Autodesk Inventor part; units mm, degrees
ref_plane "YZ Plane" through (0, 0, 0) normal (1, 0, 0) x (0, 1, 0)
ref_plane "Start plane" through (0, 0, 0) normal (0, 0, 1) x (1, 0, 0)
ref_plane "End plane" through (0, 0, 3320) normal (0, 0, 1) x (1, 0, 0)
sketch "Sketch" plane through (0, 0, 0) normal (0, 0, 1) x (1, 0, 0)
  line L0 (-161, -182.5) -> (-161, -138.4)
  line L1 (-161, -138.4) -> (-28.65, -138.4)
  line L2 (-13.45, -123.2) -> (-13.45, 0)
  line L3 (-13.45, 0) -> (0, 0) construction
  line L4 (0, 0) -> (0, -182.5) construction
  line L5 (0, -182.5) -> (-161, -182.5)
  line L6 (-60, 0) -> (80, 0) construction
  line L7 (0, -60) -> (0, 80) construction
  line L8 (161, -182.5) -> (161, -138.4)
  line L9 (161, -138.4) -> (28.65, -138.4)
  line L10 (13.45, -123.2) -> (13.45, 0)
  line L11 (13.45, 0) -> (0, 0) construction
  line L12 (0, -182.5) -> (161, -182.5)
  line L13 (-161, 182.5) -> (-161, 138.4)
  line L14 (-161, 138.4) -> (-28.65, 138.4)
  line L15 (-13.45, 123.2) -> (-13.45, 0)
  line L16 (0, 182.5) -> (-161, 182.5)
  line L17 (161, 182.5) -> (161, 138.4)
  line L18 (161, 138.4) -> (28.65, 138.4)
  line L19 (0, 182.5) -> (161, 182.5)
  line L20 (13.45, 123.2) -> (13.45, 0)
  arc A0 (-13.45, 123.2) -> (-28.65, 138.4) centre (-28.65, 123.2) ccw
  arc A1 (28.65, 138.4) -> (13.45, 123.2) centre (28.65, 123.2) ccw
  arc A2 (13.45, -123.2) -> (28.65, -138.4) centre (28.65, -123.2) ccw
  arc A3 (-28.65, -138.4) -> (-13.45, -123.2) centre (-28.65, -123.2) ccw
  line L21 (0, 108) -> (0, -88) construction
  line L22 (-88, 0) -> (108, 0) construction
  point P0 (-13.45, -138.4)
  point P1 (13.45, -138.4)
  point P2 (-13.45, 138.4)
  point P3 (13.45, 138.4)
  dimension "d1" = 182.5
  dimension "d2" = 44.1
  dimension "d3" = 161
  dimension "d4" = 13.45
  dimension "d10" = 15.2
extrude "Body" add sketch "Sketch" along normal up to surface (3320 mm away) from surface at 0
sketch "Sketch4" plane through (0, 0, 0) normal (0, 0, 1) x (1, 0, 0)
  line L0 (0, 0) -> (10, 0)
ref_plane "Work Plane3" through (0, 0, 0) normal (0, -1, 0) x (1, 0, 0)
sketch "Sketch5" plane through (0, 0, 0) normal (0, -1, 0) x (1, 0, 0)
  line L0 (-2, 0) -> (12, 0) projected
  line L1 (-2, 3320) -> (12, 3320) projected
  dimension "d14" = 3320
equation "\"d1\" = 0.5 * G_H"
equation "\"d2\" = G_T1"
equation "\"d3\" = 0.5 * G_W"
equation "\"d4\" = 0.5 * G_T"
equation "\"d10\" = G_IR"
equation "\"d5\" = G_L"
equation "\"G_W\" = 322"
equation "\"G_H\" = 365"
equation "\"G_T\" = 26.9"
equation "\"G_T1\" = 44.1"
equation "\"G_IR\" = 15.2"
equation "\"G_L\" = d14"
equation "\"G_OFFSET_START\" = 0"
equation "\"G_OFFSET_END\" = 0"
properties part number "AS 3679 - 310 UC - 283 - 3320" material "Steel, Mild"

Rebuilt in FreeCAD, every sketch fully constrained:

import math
import FreeCAD as App
import Part
import Sketcher

doc = App.newDocument("Part")
body = doc.addObject("PartDesign::Body", "Body")

# Sketch on XY plane
sketch1 = body.newObject("Sketcher::SketchObject", "Sketch")
sketch1.AttachmentSupport = (doc.getObject("XY_Plane"), [""])
sketch1.MapMode = "FlatFace"
sketch1.addGeometry([
    Part.LineSegment(App.Vector(-161, -138.4, 0), App.Vector(-161, -182.5, 0)),  # 0
    Part.LineSegment(App.Vector(-161, -182.5, 0), App.Vector(161, -182.5, 0)),  # 1
    Part.LineSegment(App.Vector(161, -182.5, 0), App.Vector(161, -138.4, 0)),  # 2
    Part.LineSegment(App.Vector(161, -138.4, 0), App.Vector(28.65, -138.4, 0)),  # 3
    Part.ArcOfCircle(Part.Circle(App.Vector(28.65, -123.2, 0), App.Vector(0, 0, 1), 15.2), math.radians(180), math.radians(270)),  # 4
    Part.LineSegment(App.Vector(13.45, -123.2, 0), App.Vector(13.45, 123.2, 0)),  # 5
    Part.ArcOfCircle(Part.Circle(App.Vector(28.65, 123.2, 0), App.Vector(0, 0, 1), 15.2), math.radians(90), math.radians(180)),  # 6
    Part.LineSegment(App.Vector(28.65, 138.4, 0), App.Vector(161, 138.4, 0)),  # 7
    Part.LineSegment(App.Vector(161, 138.4, 0), App.Vector(161, 182.5, 0)),  # 8
    Part.LineSegment(App.Vector(161, 182.5, 0), App.Vector(-161, 182.5, 0)),  # 9
    Part.LineSegment(App.Vector(-161, 182.5, 0), App.Vector(-161, 138.4, 0)),  # 10
    Part.LineSegment(App.Vector(-161, 138.4, 0), App.Vector(-28.65, 138.4, 0)),  # 11
    Part.ArcOfCircle(Part.Circle(App.Vector(-28.65, 123.2, 0), App.Vector(0, 0, 1), 15.2), math.radians(0), math.radians(90)),  # 12
    Part.LineSegment(App.Vector(-13.45, 123.2, 0), App.Vector(-13.45, -123.2, 0)),  # 13
    Part.ArcOfCircle(Part.Circle(App.Vector(-28.65, -123.2, 0), App.Vector(0, 0, 1), 15.2), math.radians(-90), math.radians(0)),  # 14
    Part.LineSegment(App.Vector(-28.65, -138.4, 0), App.Vector(-161, -138.4, 0)),  # 15
], False)
sketch1.addConstraint([
    Sketcher.Constraint("Coincident", 0, 2, 1, 1),
    Sketcher.Constraint("Coincident", 1, 2, 2, 1),
    Sketcher.Constraint("Coincident", 2, 2, 3, 1),
    Sketcher.Constraint("Tangent", 3, 2, 4, 2),
    Sketcher.Constraint("Tangent", 4, 1, 5, 1),
    Sketcher.Constraint("Tangent", 5, 2, 6, 2),
    Sketcher.Constraint("Tangent", 6, 1, 7, 1),
    Sketcher.Constraint("Coincident", 7, 2, 8, 1),
    Sketcher.Constraint("Coincident", 8, 2, 9, 1),
    Sketcher.Constraint("Coincident", 9, 2, 10, 1),
    Sketcher.Constraint("Coincident", 10, 2, 11, 1),
    Sketcher.Constraint("Tangent", 11, 2, 12, 2),
    Sketcher.Constraint("Tangent", 12, 1, 13, 1),
    Sketcher.Constraint("Tangent", 13, 2, 14, 2),
    Sketcher.Constraint("Tangent", 14, 1, 15, 1),
    Sketcher.Constraint("Coincident", 15, 2, 0, 1),
    Sketcher.Constraint("Vertical", 0),
    Sketcher.Constraint("Horizontal", 1),
    Sketcher.Constraint("Vertical", 2),
    Sketcher.Constraint("Horizontal", 3),
    Sketcher.Constraint("Vertical", 5),
    Sketcher.Constraint("Horizontal", 7),
    Sketcher.Constraint("Vertical", 8),
    Sketcher.Constraint("Horizontal", 9),
    Sketcher.Constraint("Vertical", 10),
    Sketcher.Constraint("Horizontal", 11),
    Sketcher.Constraint("Vertical", 13),
    Sketcher.Constraint("Horizontal", 15),
    Sketcher.Constraint("Equal", 4, 6),
    Sketcher.Constraint("Equal", 6, 12),
    Sketcher.Constraint("Equal", 12, 14),
    Sketcher.Constraint("Symmetric", 4, 3, 12, 3, -1, 1),
    Sketcher.Constraint("Symmetric", 0, 2, 8, 2, -1, 1),
    Sketcher.Constraint("Symmetric", 7, 2, 10, 2, -2),
    Sketcher.Constraint("Symmetric", 2, 2, 15, 2, -2),
    Sketcher.Constraint("Radius", 4, 15.2),
    Sketcher.Constraint("DistanceY", 0, 2, 0, 1, 44.1),
    Sketcher.Constraint("DistanceX", 0, 2, -1, 1, 161.0),
    Sketcher.Constraint("DistanceY", 0, 2, -1, 1, 182.5),
    Sketcher.Constraint("DistanceX", -1, 1, 4, 1, 13.45),
])
pad1 = body.newObject("PartDesign::Pad", "Pad")
pad1.Profile = sketch1
pad1.Length = 3320

doc.recompute()
